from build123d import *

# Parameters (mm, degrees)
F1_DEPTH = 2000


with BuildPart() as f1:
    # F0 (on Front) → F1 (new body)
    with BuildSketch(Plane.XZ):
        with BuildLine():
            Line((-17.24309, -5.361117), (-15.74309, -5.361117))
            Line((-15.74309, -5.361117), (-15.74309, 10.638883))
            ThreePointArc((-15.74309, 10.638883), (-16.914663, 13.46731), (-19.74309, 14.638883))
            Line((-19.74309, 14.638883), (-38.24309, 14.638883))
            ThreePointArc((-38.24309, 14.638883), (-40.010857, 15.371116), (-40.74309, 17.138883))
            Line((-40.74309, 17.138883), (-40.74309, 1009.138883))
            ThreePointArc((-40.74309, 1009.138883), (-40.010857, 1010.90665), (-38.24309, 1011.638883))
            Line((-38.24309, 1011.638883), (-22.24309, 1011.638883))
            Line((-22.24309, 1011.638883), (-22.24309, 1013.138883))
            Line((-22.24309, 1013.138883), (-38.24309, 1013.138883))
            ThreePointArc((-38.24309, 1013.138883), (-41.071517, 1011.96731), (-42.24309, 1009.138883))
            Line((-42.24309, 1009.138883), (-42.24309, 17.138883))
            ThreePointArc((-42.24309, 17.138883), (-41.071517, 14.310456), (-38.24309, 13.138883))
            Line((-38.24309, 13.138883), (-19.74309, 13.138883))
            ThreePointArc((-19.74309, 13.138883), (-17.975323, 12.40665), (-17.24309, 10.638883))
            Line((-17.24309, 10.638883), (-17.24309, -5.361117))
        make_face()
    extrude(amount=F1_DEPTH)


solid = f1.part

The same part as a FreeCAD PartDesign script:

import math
import FreeCAD as App
import Part
import Sketcher

V = App.Vector

doc = App.newDocument("Part")
body = doc.addObject("PartDesign::Body", "Body")

sketch1 = body.newObject("Sketcher::SketchObject", "Sketch")
sketch1.AttachmentSupport = (doc.getObject("XZ_Plane"), [""])
sketch1.MapMode = "FlatFace"
sketch1.addGeometry([
    Part.LineSegment(V(-17.24309, -5.361117, 0), V(-15.74309, -5.361117, 0)),
    Part.LineSegment(V(-15.74309, -5.361117, 0), V(-15.74309, 10.638883, 0)),
    Part.ArcOfCircle(Part.Circle(V(-19.74309, 10.638883, 0), V(0, 0, 1), 4), math.radians(0.000006), math.radians(89.999994)),
    Part.LineSegment(V(-19.74309, 14.638883, 0), V(-38.24309, 14.638883, 0)),
    Part.ArcOfCircle(Part.Circle(V(-38.24309, 17.138883, 0), V(0, 0, 1), 2.5), math.radians(179.999996), math.radians(270.000004)),
    Part.LineSegment(V(-40.74309, 17.138883, 0), V(-40.74309, 1009.138883, 0)),
    Part.ArcOfCircle(Part.Circle(V(-38.24309, 1009.138883, 0), V(0, 0, 1), 2.5), math.radians(89.999996), math.radians(180.000004)),
    Part.LineSegment(V(-38.24309, 1011.638883, 0), V(-22.24309, 1011.638883, 0)),
    Part.LineSegment(V(-22.24309, 1011.638883, 0), V(-22.24309, 1013.138883, 0)),
    Part.LineSegment(V(-22.24309, 1013.138883, 0), V(-38.24309, 1013.138883, 0)),
    Part.ArcOfCircle(Part.Circle(V(-38.24309, 1009.138883, 0), V(0, 0, 1), 4), math.radians(90.000006), math.radians(179.999994)),
    Part.LineSegment(V(-42.24309, 1009.138883, 0), V(-42.24309, 17.138883, 0)),
    Part.ArcOfCircle(Part.Circle(V(-38.24309, 17.138883, 0), V(0, 0, 1), 4), math.radians(-179.999994), math.radians(-90.000006)),
    Part.LineSegment(V(-38.24309, 13.138883, 0), V(-19.74309, 13.138883, 0)),
    Part.ArcOfCircle(Part.Circle(V(-19.74309, 10.638883, 0), V(0, 0, 1), 2.5), math.radians(-0.000004), math.radians(90.000004)),
    Part.LineSegment(V(-17.24309, 10.638883, 0), V(-17.24309, -5.361117, 0)),
], False)
sketch1.addConstraint([
    Sketcher.Constraint("Coincident", 0, 2, 1, 1),
    Sketcher.Constraint("Tangent", 1, 2, 2, 1),
    Sketcher.Constraint("Tangent", 2, 2, 3, 1),
    Sketcher.Constraint("Tangent", 3, 2, 4, 2),
    Sketcher.Constraint("Tangent", 4, 1, 5, 1),
    Sketcher.Constraint("Tangent", 5, 2, 6, 2),
    Sketcher.Constraint("Tangent", 6, 1, 7, 1),
    Sketcher.Constraint("Coincident", 7, 2, 8, 1),
    Sketcher.Constraint("Coincident", 8, 2, 9, 1),
    Sketcher.Constraint("Tangent", 9, 2, 10, 1),
    Sketcher.Constraint("Tangent", 10, 2, 11, 1),
    Sketcher.Constraint("Tangent", 11, 2, 12, 1),
    Sketcher.Constraint("Tangent", 12, 2, 13, 1),
    Sketcher.Constraint("Tangent", 13, 2, 14, 2),
    Sketcher.Constraint("Tangent", 14, 1, 15, 1),
    Sketcher.Constraint("Coincident", 15, 2, 0, 1),
    Sketcher.Constraint("Horizontal", 0),
    Sketcher.Constraint("Vertical", 1),
    Sketcher.Constraint("Horizontal", 3),
    Sketcher.Constraint("Vertical", 5),
    Sketcher.Constraint("Horizontal", 7),
    Sketcher.Constraint("Vertical", 8),
    Sketcher.Constraint("Horizontal", 9),
    Sketcher.Constraint("Vertical", 11),
    Sketcher.Constraint("Horizontal", 13),
    Sketcher.Constraint("Vertical", 15),
    Sketcher.Constraint("Coincident", 10, 3, 6, 3),
    Sketcher.Constraint("Coincident", 12, 3, 4, 3),
    Sketcher.Constraint("Coincident", 14, 3, 2, 3),
    Sketcher.Constraint("Equal", 4, 6),
    Sketcher.Constraint("Equal", 2, 10),
    Sketcher.Constraint("Equal", 9, 1),
    Sketcher.Constraint("Radius", 2, 4.0),
    Sketcher.Constraint("Radius", 4, 2.5),
    Sketcher.Constraint("DistanceX", 7, 1, 7, 2, 16.0),
    Sketcher.Constraint("DistanceY", 5, 1, 5, 2, 992.0),
    Sketcher.Constraint("DistanceX", 3, 2, 3, 1, 18.5),
    Sketcher.Constraint("DistanceX", 2, 3, -1, 1, 19.74309),
    Sketcher.Constraint("DistanceY", -1, 1, 2, 3, 10.638883),
])
pad1 = body.newObject("PartDesign::Pad", "Pad")
pad1.Profile = sketch1
pad1.Length = 2000

doc.recompute()
